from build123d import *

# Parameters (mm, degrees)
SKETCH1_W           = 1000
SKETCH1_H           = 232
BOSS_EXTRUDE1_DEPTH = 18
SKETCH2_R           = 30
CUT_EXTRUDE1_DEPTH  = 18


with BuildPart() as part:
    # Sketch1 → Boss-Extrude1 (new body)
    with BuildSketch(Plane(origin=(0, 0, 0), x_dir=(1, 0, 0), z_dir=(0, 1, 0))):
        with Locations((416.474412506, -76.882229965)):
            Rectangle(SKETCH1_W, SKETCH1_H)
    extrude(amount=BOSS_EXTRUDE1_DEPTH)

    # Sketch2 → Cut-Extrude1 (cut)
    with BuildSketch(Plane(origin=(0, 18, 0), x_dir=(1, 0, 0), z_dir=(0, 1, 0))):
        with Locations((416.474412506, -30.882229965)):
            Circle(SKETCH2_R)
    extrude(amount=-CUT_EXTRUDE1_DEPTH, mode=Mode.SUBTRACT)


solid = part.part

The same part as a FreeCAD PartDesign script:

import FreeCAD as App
import Part
import Sketcher

V = App.Vector
Q = App.Units.Quantity


def add_polygon(sketch, points):
    """Adds a closed chain of lines whose ends are joined by coincident constraints."""
    first, n = sketch.GeometryCount, len(points)
    for a, b in zip(points, points[1:] + points[:1]):
        sketch.addGeometry(Part.LineSegment(App.Vector(*a, 0), App.Vector(*b, 0)), False)
    for i in range(n):
        sketch.addConstraint(Sketcher.Constraint("Coincident", first + i, 2, first + (i + 1) % n, 1))

doc = App.newDocument("Part")
body = doc.addObject("PartDesign::Body", "Body")

# Sketch on XZ plane
sketch1 = body.newObject("Sketcher::SketchObject", "Sketch")
sketch1.AttachmentSupport = (doc.getObject("XZ_Plane"), [""])
sketch1.MapMode = "FlatFace"
add_polygon(sketch1, [(-84, -39), (-84, 193), (916, 193), (916, -39)])  # lines 0-3
sketch1.addConstraint(Sketcher.Constraint("Vertical", 0))
sketch1.addConstraint(Sketcher.Constraint("Horizontal", 1))
sketch1.addConstraint(Sketcher.Constraint("Vertical", 2))
sketch1.addConstraint(Sketcher.Constraint("Horizontal", 3))
sketch1.addConstraint(Sketcher.Constraint("DistanceX", 1, 1, 1, 2, Q("1000 mm")))
sketch1.addConstraint(Sketcher.Constraint("DistanceY", 0, 1, 0, 2, Q("232 mm")))
sketch1.addConstraint(Sketcher.Constraint("DistanceY", -1, 1, 0, 2, Q("192.88223 mm")))
sketch1.addConstraint(Sketcher.Constraint("DistanceX", 0, 2, -1, 1, Q("83.525587 mm")))
pad1 = body.newObject("PartDesign::Pad", "Pad")
pad1.Profile = sketch1
pad1.Length = 18
pad1.Reversed = True

# Sketch on XZ plane
sketch2 = body.newObject("Sketcher::SketchObject", "Sketch001")
sketch2.AttachmentSupport = (doc.getObject("XZ_Plane"), [""])
sketch2.MapMode = "FlatFace"
sketch2.AttachmentOffset = App.Placement(V(0, 0, -18), App.Rotation())
sketch2.addGeometry(Part.Circle(V(416, 31, 0), V(0, 0, 1), 30), False)
sketch2.addConstraint(Sketcher.Constraint("Diameter", 0, Q("60 mm")))
sketch2.addConstraint(Sketcher.Constraint("DistanceY", -1, 1, 0, 3, Q("30.88223 mm")))
sketch2.addConstraint(Sketcher.Constraint("DistanceX", -1, 1, 0, 3, Q("416.474413 mm")))
pocket1 = body.newObject("PartDesign::Pocket", "Pocket")
pocket1.Profile = sketch2
pocket1.Length = 18
pocket1.Reversed = True

doc.recompute()
